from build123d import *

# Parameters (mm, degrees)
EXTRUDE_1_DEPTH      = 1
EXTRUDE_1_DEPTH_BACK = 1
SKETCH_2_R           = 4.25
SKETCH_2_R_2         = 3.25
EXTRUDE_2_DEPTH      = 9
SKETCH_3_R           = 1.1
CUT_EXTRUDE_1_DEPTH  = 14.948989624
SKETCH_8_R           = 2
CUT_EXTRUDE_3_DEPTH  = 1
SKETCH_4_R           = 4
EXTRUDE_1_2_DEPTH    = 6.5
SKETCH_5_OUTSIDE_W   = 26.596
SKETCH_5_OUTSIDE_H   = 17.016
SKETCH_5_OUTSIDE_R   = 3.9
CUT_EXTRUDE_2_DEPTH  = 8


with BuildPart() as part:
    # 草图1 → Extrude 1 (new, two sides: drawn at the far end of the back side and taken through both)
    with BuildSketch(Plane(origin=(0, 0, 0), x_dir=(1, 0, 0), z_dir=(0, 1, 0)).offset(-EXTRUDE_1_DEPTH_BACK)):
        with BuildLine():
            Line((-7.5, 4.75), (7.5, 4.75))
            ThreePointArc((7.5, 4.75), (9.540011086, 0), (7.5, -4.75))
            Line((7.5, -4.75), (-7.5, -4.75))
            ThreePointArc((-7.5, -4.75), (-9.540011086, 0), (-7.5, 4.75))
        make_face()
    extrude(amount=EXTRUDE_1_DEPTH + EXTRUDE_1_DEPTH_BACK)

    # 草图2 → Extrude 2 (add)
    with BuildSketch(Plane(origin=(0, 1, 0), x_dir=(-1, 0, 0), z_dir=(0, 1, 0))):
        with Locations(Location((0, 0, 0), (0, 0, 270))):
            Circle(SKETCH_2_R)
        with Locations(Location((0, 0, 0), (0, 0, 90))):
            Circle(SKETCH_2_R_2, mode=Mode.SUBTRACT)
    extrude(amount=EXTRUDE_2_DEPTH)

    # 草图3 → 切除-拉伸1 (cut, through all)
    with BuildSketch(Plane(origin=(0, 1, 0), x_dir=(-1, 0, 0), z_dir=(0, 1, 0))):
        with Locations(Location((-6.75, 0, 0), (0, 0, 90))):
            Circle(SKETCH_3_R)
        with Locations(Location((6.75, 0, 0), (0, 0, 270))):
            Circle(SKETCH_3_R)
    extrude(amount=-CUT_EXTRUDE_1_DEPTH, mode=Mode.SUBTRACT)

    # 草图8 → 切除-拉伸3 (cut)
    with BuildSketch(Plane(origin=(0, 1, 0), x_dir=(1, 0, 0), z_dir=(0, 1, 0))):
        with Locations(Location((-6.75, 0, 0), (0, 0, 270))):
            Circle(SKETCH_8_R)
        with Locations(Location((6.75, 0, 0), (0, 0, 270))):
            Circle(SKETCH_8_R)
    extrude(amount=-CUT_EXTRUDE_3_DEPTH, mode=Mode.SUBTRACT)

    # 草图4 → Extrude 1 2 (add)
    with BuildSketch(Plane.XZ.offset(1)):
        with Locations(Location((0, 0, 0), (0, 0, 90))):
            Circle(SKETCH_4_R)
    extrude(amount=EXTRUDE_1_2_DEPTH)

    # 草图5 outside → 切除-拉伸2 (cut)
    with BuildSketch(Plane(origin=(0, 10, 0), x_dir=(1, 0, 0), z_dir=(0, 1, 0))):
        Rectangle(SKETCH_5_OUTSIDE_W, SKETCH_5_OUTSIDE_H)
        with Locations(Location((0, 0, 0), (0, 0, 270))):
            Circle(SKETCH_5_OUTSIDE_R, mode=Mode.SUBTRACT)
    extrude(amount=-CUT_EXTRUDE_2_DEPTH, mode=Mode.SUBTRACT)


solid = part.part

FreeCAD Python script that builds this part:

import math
import FreeCAD as App
import Part
import Sketcher
Q = App.Units.Quantity


def add_polygon(sketch, points):
    """Adds a closed chain of lines whose ends are joined by coincident constraints."""
    first, n = sketch.GeometryCount, len(points)
    for a, b in zip(points, points[1:] + points[:1]):
        sketch.addGeometry(Part.LineSegment(App.Vector(*a, 0), App.Vector(*b, 0)), False)
    for i in range(n):
        sketch.addConstraint(Sketcher.Constraint("Coincident", first + i, 2, first + (i + 1) % n, 1))

doc = App.newDocument("Part")
body = doc.addObject("PartDesign::Body", "Body")

sketch1 = body.newObject("Sketcher::SketchObject", "Sketch")
sketch1.AttachmentSupport = (doc.getObject("XZ_Plane"), [""])
sketch1.MapMode = "FlatFace"
sketch1.addGeometry(Part.LineSegment(App.Vector(8, -5, 0), App.Vector(-8, -5, 0)), False)
sketch1.addGeometry(Part.ArcOfCircle(Part.Circle(App.Vector(-3, 0, 0), App.Vector(0, 0, 1), 7), math.radians(134), math.radians(226)), False)
sketch1.addGeometry(Part.LineSegment(App.Vector(-8, 5, 0), App.Vector(8, 5, 0)), False)
sketch1.addGeometry(Part.ArcOfCircle(Part.Circle(App.Vector(3, 0, 0), App.Vector(0, 0, 1), 7), math.radians(-46), math.radians(46)), False)
sketch1.addConstraint(Sketcher.Constraint("Coincident", 0, 2, 1, 2))
sketch1.addConstraint(Sketcher.Constraint("Coincident", 1, 1, 2, 1))
sketch1.addConstraint(Sketcher.Constraint("Coincident", 2, 2, 3, 2))
sketch1.addConstraint(Sketcher.Constraint("Coincident", 3, 1, 0, 1))
sketch1.addConstraint(Sketcher.Constraint("Horizontal", 0))
sketch1.addConstraint(Sketcher.Constraint("Horizontal", 2))
sketch1.addConstraint(Sketcher.Constraint("Equal", 1, 3))
sketch1.addConstraint(Sketcher.Constraint("Symmetric", 1, 3, 3, 3, -1, 1))
sketch1.addConstraint(Sketcher.Constraint("Symmetric", 0, 2, 1, 1, -1))
sketch1.addConstraint(Sketcher.Constraint("DistanceX", 0, 2, 0, 1, Q("15 mm")))
sketch1.addConstraint(Sketcher.Constraint("Radius", 1, Q("6.55 mm")))
sketch1.addConstraint(Sketcher.Constraint("DistanceY", 0, 2, 1, 1, Q("9.5 mm")))
pad1 = body.newObject("PartDesign::Pad", "Pad")
pad1.Profile = sketch1
pad1.Type = "TwoLengths"
pad1.Length = 1
pad1.Length2 = 1
pad1.Reversed = True

sketch2 = body.newObject("Sketcher::SketchObject", "Sketch001")
sketch2.AttachmentSupport = (doc.getObject("XZ_Plane"), [""])
sketch2.MapMode = "FlatFace"
sketch2.AttachmentOffset = App.Placement(App.Vector(0, 0, -1), App.Rotation())
sketch2.addGeometry(Part.Circle(App.Vector(0, 0, 0), App.Vector(0, 0, 1), 4.2), False)
sketch2.addGeometry(Part.Circle(App.Vector(0, 0, 0), App.Vector(0, 0, 1), 3.2), False)
sketch2.addConstraint(Sketcher.Constraint("Coincident", 0, 3, -1, 1))
sketch2.addConstraint(Sketcher.Constraint("Coincident", 1, 3, -1, 1))
sketch2.addConstraint(Sketcher.Constraint("Diameter", 0, Q("8.5 mm")))
sketch2.addConstraint(Sketcher.Constraint("Diameter", 1, Q("6.5 mm")))
pad2 = body.newObject("PartDesign::Pad", "Pad001")
pad2.Profile = sketch2
pad2.Length = 9
pad2.Reversed = True

sketch3 = body.newObject("Sketcher::SketchObject", "Sketch002")
sketch3.AttachmentSupport = (doc.getObject("XZ_Plane"), [""])
sketch3.MapMode = "FlatFace"
sketch3.AttachmentOffset = App.Placement(App.Vector(0, 0, -1), App.Rotation())
sketch3.addGeometry(Part.Circle(App.Vector(6.8, 0, 0), App.Vector(0, 0, 1), 1.1), False)
sketch3.addGeometry(Part.Circle(App.Vector(-6.8, 0, 0), App.Vector(0, 0, 1), 1.1), False)
sketch3.addConstraint(Sketcher.Constraint("Equal", 0, 1))
sketch3.addConstraint(Sketcher.Constraint("Symmetric", 0, 3, 1, 3, -1, 1))
sketch3.addConstraint(Sketcher.Constraint("PointOnObject", 0, 3, -1))
sketch3.addConstraint(Sketcher.Constraint("Diameter", 0, Q("2.2 mm")))
sketch3.addConstraint(Sketcher.Constraint("DistanceX", 1, 3, 0, 3, Q("13.5 mm")))
pocket1 = body.newObject("PartDesign::Pocket", "Pocket")
pocket1.Profile = sketch3
pocket1.Type = "ThroughAll"
pocket1.Reversed = True

sketch4 = body.newObject("Sketcher::SketchObject", "Sketch003")
sketch4.AttachmentSupport = (doc.getObject("XZ_Plane"), [""])
sketch4.MapMode = "FlatFace"
sketch4.AttachmentOffset = App.Placement(App.Vector(0, 0, -1), App.Rotation())
sketch4.addGeometry(Part.Circle(App.Vector(-6.8, 0, 0), App.Vector(0, 0, 1), 2), False)
sketch4.addGeometry(Part.Circle(App.Vector(6.8, 0, 0), App.Vector(0, 0, 1), 2), False)
sketch4.addConstraint(Sketcher.Constraint("Equal", 0, 1))
sketch4.addConstraint(Sketcher.Constraint("Symmetric", 0, 3, 1, 3, -1, 1))
sketch4.addConstraint(Sketcher.Constraint("PointOnObject", 0, 3, -1))
sketch4.addConstraint(Sketcher.Constraint("Diameter", 0, Q("4 mm")))
sketch4.addConstraint(Sketcher.Constraint("DistanceX", 0, 3, 1, 3, Q("13.5 mm")))
pocket2 = body.newObject("PartDesign::Pocket", "Pocket001")
pocket2.Profile = sketch4
pocket2.Length = 1
pocket2.Reversed = True

sketch5 = body.newObject("Sketcher::SketchObject", "Sketch004")
sketch5.AttachmentSupport = (doc.getObject("XZ_Plane"), [""])
sketch5.MapMode = "FlatFace"
sketch5.AttachmentOffset = App.Placement(App.Vector(0, 0, 1), App.Rotation())
sketch5.addGeometry(Part.Circle(App.Vector(0, 0, 0), App.Vector(0, 0, 1), 4), False)
sketch5.addConstraint(Sketcher.Constraint("Coincident", 0, 3, -1, 1))
sketch5.addConstraint(Sketcher.Constraint("Diameter", 0, Q("8 mm")))
pad3 = body.newObject("PartDesign::Pad", "Pad002")
pad3.Profile = sketch5
pad3.Length = 6.5

sketch6 = body.newObject("Sketcher::SketchObject", "Sketch005")
sketch6.AttachmentSupport = (doc.getObject("XZ_Plane"), [""])
sketch6.MapMode = "FlatFace"
sketch6.AttachmentOffset = App.Placement(App.Vector(0, 0, -10), App.Rotation())
add_polygon(sketch6, [(-13.3, -8.5), (-13.3, 8.5), (13.3, 8.5), (13.3, -8.5)])
sketch6.addGeometry(Part.Circle(App.Vector(0, 0, 0), App.Vector(0, 0, 1), 3.9), False)
sketch6.addConstraint(Sketcher.Constraint("Vertical", 0))
sketch6.addConstraint(Sketcher.Constraint("Horizontal", 1))
sketch6.addConstraint(Sketcher.Constraint("Vertical", 2))
sketch6.addConstraint(Sketcher.Constraint("Horizontal", 3))
sketch6.addConstraint(Sketcher.Constraint("Coincident", 4, 3, -1, 1))
sketch6.addConstraint(Sketcher.Constraint("Symmetric", 0, 2, 2, 2, -1, 1))
sketch6.addConstraint(Sketcher.Constraint("Diameter", 4, Q("7.8 mm")))
sketch6.addConstraint(Sketcher.Constraint("DistanceX", 1, 1, 1, 2, Q("26.596 mm")))
sketch6.addConstraint(Sketcher.Constraint("DistanceY", 0, 1, 0, 2, Q("17.016 mm")))
pocket3 = body.newObject("PartDesign::Pocket", "Pocket002")
pocket3.Profile = sketch6
pocket3.Length = 8
pocket3.Reversed = True

doc.recompute()
